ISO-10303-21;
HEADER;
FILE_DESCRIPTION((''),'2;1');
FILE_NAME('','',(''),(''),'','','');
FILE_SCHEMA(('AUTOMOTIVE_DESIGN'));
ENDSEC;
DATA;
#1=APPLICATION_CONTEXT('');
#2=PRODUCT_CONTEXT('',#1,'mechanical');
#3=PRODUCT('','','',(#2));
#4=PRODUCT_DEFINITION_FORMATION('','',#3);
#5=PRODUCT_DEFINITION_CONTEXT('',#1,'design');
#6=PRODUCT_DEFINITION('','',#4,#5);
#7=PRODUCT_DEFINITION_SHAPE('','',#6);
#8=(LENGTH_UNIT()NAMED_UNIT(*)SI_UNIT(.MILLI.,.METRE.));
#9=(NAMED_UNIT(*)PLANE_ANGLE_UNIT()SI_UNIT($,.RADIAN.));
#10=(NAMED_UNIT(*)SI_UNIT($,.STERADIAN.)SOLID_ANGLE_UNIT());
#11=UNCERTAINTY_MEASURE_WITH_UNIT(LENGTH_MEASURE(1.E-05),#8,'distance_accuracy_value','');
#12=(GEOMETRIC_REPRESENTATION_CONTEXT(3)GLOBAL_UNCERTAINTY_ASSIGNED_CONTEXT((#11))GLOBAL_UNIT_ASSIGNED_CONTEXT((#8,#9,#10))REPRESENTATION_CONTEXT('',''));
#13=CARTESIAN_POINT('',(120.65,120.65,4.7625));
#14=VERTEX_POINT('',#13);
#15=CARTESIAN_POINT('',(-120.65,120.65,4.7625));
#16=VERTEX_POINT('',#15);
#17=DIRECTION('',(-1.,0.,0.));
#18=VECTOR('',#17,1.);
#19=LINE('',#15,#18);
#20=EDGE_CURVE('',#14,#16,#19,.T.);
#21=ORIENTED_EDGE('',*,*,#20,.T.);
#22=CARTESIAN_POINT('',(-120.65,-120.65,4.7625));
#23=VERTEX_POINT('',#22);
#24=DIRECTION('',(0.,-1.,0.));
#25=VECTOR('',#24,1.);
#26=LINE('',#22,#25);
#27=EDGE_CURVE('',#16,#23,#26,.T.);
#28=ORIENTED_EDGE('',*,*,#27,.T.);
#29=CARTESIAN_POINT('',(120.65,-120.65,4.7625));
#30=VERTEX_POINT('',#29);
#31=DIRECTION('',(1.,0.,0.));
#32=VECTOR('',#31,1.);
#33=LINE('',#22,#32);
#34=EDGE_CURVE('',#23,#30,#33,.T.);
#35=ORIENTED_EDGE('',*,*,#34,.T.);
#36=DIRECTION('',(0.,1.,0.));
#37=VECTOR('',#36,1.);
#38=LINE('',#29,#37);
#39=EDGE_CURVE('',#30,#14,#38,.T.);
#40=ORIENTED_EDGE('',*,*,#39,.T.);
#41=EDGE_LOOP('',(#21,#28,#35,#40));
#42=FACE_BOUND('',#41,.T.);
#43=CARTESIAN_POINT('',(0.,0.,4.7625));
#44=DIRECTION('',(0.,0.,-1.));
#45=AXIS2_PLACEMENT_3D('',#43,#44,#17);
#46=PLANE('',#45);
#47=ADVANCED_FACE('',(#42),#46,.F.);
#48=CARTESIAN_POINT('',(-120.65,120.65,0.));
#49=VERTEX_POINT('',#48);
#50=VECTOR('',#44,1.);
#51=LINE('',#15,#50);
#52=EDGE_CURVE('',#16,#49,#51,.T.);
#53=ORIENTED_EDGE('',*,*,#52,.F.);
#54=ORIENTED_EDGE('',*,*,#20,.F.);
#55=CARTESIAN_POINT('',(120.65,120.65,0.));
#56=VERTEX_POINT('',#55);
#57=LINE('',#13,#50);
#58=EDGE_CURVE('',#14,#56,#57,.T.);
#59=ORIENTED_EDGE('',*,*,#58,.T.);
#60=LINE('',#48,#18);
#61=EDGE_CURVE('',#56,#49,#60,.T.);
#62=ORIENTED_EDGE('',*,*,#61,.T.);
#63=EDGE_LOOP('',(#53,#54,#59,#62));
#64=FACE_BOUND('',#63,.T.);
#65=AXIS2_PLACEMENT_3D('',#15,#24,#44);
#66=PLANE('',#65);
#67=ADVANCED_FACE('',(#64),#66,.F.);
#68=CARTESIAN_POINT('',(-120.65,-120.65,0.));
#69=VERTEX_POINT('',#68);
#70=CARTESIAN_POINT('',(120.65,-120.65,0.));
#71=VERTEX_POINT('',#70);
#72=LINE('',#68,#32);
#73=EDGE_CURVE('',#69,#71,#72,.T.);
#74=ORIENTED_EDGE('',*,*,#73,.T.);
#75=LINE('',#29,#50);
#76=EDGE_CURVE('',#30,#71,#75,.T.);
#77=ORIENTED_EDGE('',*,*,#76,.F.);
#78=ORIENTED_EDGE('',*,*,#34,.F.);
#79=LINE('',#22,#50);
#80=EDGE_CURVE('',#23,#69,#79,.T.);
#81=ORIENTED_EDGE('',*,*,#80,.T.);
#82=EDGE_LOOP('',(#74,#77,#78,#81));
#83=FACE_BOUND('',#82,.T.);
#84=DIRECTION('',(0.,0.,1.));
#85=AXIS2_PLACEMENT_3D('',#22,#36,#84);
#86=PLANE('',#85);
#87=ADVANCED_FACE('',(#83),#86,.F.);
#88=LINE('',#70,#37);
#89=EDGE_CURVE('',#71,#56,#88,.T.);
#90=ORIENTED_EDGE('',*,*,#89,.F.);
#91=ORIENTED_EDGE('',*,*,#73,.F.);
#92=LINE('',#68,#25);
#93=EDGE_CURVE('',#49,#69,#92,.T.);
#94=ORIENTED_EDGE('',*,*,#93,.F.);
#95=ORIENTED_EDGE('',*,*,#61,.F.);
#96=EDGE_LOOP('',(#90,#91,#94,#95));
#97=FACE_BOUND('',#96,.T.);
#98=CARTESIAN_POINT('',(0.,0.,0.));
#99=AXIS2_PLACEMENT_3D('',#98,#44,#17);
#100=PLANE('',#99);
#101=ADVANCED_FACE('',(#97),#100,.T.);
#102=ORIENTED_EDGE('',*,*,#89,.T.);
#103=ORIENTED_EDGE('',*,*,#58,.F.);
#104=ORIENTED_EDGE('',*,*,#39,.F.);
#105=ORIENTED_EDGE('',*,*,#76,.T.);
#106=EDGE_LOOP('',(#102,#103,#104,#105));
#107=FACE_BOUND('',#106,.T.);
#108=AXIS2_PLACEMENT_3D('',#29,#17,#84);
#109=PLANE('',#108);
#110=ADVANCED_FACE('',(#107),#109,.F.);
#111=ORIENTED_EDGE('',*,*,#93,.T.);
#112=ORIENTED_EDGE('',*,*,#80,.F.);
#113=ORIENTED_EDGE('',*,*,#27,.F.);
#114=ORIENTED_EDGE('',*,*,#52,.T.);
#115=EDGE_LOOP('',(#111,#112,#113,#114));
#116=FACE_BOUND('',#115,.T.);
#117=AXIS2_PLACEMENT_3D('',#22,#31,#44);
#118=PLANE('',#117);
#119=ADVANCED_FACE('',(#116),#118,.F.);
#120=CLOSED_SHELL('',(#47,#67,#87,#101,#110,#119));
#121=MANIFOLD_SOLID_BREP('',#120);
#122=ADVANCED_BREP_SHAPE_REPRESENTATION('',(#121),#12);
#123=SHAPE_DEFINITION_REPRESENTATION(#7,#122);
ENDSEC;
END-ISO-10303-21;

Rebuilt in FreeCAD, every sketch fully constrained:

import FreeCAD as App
import Part
import Sketcher

V = App.Vector
Q = App.Units.Quantity

doc = App.newDocument("Part")
body = doc.addObject("PartDesign::Body", "Body")

sketch1 = doc.addObject("Sketcher::SketchObject", "Sketch")
body.addObject(sketch1)
sketch1.AttachmentSupport = (doc.XY_Plane, [""])
sketch1.MapMode = "FlatFace"
sketch1.addGeometry([
    Part.LineSegment(V(-121, 121, 0), V(-121, -121, 0)),
    Part.LineSegment(V(-121, -121, 0), V(121, -121, 0)),
    Part.LineSegment(V(121, -121, 0), V(121, 121, 0)),
    Part.LineSegment(V(121, 121, 0), V(-121, 121, 0)),
], False)
sketch1.addConstraint([
    Sketcher.Constraint("Coincident", 0, 2, 1, 1),
    Sketcher.Constraint("Coincident", 1, 2, 2, 1),
    Sketcher.Constraint("Coincident", 2, 2, 3, 1),
    Sketcher.Constraint("Coincident", 3, 2, 0, 1),
    Sketcher.Constraint("Vertical", 0),
    Sketcher.Constraint("Horizontal", 1),
    Sketcher.Constraint("Vertical", 2),
    Sketcher.Constraint("Horizontal", 3),
    Sketcher.Constraint("Symmetric", 0, 2, 2, 2, -1, 1),
    Sketcher.Constraint("Equal", 3, 0),
    Sketcher.Constraint("DistanceX", 1, 1, 1, 2, Q("9.5 in")),
])
pad1 = doc.addObject("PartDesign::Pad", "Pad")
body.addObject(pad1)
pad1.Profile = sketch1
pad1.Length = Q("0.1875 in")

doc.recompute()
